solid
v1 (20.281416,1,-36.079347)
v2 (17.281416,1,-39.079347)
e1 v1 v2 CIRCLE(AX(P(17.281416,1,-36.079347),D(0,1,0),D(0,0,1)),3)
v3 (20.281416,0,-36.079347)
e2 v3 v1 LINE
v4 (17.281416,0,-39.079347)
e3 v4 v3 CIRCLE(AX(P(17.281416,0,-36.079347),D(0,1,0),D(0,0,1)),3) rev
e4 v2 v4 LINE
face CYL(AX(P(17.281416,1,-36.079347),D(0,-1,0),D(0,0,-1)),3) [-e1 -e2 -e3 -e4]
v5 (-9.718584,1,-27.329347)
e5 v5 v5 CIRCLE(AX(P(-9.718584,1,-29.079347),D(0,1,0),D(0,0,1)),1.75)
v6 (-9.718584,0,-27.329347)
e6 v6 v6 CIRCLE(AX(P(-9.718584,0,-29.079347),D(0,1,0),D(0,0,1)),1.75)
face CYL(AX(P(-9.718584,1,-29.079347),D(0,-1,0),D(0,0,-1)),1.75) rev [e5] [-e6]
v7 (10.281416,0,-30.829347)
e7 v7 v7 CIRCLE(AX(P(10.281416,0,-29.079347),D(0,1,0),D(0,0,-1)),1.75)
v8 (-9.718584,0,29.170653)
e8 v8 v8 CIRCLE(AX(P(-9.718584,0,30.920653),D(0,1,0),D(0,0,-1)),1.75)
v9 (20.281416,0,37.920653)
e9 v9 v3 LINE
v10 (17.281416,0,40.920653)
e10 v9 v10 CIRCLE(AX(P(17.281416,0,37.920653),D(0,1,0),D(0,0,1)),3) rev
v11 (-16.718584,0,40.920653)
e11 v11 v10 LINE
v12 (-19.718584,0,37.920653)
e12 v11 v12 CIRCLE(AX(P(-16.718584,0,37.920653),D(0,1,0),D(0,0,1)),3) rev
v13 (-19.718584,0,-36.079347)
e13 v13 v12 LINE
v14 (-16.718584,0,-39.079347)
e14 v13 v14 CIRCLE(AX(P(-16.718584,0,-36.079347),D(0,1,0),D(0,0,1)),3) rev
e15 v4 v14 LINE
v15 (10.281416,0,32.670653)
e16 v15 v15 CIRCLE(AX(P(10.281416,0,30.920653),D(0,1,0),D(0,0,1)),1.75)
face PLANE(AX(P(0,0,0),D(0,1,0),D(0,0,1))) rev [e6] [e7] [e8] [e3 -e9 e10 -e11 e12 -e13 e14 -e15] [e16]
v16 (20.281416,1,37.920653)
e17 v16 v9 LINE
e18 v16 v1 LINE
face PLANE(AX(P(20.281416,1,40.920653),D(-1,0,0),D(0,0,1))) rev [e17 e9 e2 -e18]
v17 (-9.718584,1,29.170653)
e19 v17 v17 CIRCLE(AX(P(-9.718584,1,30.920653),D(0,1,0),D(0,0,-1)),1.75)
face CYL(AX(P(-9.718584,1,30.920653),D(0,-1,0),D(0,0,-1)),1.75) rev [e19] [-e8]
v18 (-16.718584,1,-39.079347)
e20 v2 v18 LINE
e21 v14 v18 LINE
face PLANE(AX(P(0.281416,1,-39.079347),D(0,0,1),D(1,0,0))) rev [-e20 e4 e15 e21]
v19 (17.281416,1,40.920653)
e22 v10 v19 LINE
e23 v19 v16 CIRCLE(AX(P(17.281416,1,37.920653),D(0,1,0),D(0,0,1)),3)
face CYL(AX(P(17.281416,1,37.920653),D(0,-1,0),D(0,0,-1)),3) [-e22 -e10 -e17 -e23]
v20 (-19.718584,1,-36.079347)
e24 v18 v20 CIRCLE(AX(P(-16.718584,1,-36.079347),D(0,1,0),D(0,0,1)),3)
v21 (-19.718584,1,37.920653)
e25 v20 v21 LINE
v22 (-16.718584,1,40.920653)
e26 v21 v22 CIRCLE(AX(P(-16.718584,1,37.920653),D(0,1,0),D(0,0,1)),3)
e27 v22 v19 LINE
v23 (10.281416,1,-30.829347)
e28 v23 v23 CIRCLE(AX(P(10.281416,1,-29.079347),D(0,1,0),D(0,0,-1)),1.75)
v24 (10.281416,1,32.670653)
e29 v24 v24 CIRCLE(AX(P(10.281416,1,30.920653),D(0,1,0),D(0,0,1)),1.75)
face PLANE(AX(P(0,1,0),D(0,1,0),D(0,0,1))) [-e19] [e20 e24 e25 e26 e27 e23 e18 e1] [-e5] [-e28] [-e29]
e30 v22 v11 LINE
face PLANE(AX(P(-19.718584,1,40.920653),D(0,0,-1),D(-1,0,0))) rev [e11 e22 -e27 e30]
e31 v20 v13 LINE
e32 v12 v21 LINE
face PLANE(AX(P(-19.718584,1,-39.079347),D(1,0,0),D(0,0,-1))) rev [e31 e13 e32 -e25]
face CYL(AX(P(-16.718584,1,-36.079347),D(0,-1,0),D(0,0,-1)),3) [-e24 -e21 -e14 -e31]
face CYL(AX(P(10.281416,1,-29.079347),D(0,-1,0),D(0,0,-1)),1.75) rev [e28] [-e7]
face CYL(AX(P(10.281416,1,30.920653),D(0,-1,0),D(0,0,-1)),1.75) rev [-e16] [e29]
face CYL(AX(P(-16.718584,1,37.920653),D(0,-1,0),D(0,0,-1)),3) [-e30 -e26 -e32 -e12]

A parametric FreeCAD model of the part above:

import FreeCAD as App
import Part
import Sketcher

V = App.Vector


def edges_at(feature, points):
    """Names of the edges that pass closest to the given points."""
    edges = feature.Shape.Edges
    near = lambda p: min(range(len(edges)), key=lambda i: edges[i].distToShape(Part.Vertex(*p))[0])
    return sorted({f"Edge{near(p) + 1}" for p in points})


def add_polygon(sketch, points):
    """Adds a closed chain of lines whose ends are joined by coincident constraints."""
    first, n = sketch.GeometryCount, len(points)
    for a, b in zip(points, points[1:] + points[:1]):
        sketch.addGeometry(Part.LineSegment(App.Vector(*a, 0), App.Vector(*b, 0)), False)
    for i in range(n):
        sketch.addConstraint(Sketcher.Constraint("Coincident", first + i, 2, first + (i + 1) % n, 1))

doc = App.newDocument("Part")
body = doc.addObject("PartDesign::Body", "Body")

# Sketch on XZ plane
sketch1 = doc.addObject("Sketcher::SketchObject", "Sketch")
body.addObject(sketch1)
sketch1.AttachmentSupport = (doc.XZ_Plane, [""])
sketch1.MapMode = "FlatFace"
add_polygon(sketch1, [(-19.7, -39.1), (-19.7, 40.9), (20.3, 40.9), (20.3, -39.1)])  # lines 0-3
sketch1.addGeometry(Part.Circle(V(-9.7, 30.9, 0), V(0, 0, 1), 1.8), False)  # 4
sketch1.addGeometry(Part.Circle(V(10.3, 30.9, 0), V(0, 0, 1), 1.8), False)  # 5
sketch1.addGeometry(Part.Circle(V(-9.7, -29.1, 0), V(0, 0, 1), 1.8), False)  # 6
sketch1.addGeometry(Part.Circle(V(10.3, -29.1, 0), V(0, 0, 1), 1.8), False)  # 7
sketch1.addConstraint([
    Sketcher.Constraint("Vertical", 0),
    Sketcher.Constraint("Horizontal", 1),
    Sketcher.Constraint("Vertical", 2),
    Sketcher.Constraint("Horizontal", 3),
    Sketcher.Constraint("Equal", 4, 5),
    Sketcher.Constraint("Equal", 5, 6),
    Sketcher.Constraint("Equal", 6, 7),
    Sketcher.Constraint("Horizontal", 4, 3, 5, 3),
    Sketcher.Constraint("Horizontal", 6, 3, 7, 3),
    Sketcher.Constraint("Vertical", 4, 3, 6, 3),
    Sketcher.Constraint("Vertical", 5, 3, 7, 3),
    Sketcher.Constraint("Diameter", 4, 3.5),
    Sketcher.Constraint("DistanceX", 1, 1, 1, 2, 40.0),
    Sketcher.Constraint("DistanceY", 0, 1, 0, 2, 80.0),
    Sketcher.Constraint("DistanceX", 4, 3, 5, 3, 20.0),
    Sketcher.Constraint("DistanceY", 6, 3, 4, 3, 60.0),
    Sketcher.Constraint("DistanceX", 0, 2, 4, 3, 10.0),
    Sketcher.Constraint("DistanceY", 4, 3, 0, 2, 10.0),
    Sketcher.Constraint("DistanceX", 4, 3, -1, 1, 9.718584),
    Sketcher.Constraint("DistanceY", -1, 1, 4, 3, 30.920653),
])
pad1 = doc.addObject("PartDesign::Pad", "Pad")
body.addObject(pad1)
pad1.Profile = sketch1
pad1.Length = 1
pad1.Reversed = True
doc.recompute()

fillet = doc.addObject("PartDesign::Fillet", "Fillet")
body.addObject(fillet)
fillet.Base = (pad1, edges_at(pad1, [
    (20.281, 0.5, -39.079),
    (20.281, 0.5, 40.921),
    (-19.719, 0.5, 40.921),
    (-19.719, 0.5, -39.079),
]))
fillet.Radius = 3

doc.recompute()
